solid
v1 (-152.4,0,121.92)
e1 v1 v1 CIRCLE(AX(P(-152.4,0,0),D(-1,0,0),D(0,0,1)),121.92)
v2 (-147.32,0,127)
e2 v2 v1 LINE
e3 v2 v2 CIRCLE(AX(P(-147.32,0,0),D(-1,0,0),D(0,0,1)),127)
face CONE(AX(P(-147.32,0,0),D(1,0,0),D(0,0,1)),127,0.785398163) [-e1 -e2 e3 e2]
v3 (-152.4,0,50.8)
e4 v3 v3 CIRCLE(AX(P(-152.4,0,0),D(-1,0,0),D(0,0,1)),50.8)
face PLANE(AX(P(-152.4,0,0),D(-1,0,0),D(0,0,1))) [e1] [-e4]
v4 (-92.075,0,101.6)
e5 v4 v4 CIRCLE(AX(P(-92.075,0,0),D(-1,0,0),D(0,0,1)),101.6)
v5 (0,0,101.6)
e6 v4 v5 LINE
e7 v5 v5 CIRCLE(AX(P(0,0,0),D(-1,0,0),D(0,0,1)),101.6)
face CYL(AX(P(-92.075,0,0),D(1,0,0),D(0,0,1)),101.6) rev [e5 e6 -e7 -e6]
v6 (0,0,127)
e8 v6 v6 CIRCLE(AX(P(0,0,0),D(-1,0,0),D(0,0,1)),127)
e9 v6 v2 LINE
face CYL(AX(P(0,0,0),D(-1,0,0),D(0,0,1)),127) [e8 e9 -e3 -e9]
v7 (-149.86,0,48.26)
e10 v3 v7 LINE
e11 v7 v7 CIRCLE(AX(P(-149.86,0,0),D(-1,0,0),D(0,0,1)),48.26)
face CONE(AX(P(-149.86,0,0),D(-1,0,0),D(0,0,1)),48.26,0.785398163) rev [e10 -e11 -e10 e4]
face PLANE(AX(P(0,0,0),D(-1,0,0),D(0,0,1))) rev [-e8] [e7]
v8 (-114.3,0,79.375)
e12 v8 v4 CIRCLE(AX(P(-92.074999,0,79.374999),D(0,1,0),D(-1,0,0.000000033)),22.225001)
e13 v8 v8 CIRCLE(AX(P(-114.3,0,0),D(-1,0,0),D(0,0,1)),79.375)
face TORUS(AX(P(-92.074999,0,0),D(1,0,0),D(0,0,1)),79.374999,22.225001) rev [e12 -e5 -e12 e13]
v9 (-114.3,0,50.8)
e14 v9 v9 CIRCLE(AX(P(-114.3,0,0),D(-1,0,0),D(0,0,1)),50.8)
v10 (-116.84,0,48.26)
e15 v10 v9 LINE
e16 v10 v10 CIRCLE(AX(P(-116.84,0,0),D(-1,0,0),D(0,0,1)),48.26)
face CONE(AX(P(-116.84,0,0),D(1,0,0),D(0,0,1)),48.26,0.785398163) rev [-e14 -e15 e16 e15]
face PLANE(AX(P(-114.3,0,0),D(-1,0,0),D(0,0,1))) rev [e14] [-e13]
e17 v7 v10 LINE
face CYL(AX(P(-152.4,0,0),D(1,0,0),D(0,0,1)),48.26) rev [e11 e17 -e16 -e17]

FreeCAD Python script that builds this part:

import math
import FreeCAD as App
import Part
import Sketcher
Q = App.Units.Quantity


def edges_at(feature, points):
    """Names of the edges that pass closest to the given points."""
    edges = feature.Shape.Edges
    near = lambda p: min(range(len(edges)), key=lambda i: edges[i].distToShape(Part.Vertex(*p))[0])
    return sorted({f"Edge{near(p) + 1}" for p in points})

doc = App.newDocument("Part")
body = doc.addObject("PartDesign::Body", "Body")

sketch1 = doc.addObject("Sketcher::SketchObject", "Sketch")
body.addObject(sketch1)
sketch1.AttachmentSupport = (doc.XZ_Plane, [""])
sketch1.MapMode = "FlatFace"
sketch1.addGeometry([
    Part.LineSegment(App.Vector(0, 101.6, 0), App.Vector(0, 127, 0)),
    Part.LineSegment(App.Vector(0, 127, 0), App.Vector(-152.4, 127, 0)),
    Part.LineSegment(App.Vector(-152.4, 127, 0), App.Vector(-152.4, 48.26, 0)),
    Part.LineSegment(App.Vector(-152.4, 48.26, 0), App.Vector(-114.3, 48.26, 0)),
    Part.LineSegment(App.Vector(-114.3, 48.26, 0), App.Vector(-114.3, 79.375, 0)),
    Part.ArcOfCircle(Part.Circle(App.Vector(-92.074999, 79.374999, 0), App.Vector(0, 0, 1), 22.225001), math.radians(90.000002), math.radians(179.999998)),
    Part.LineSegment(App.Vector(-92.075, 101.6, 0), App.Vector(0, 101.6, 0)),
], False)
sketch1.addConstraint([
    Sketcher.Constraint("Coincident", 0, 2, 1, 1),
    Sketcher.Constraint("Coincident", 1, 2, 2, 1),
    Sketcher.Constraint("Coincident", 2, 2, 3, 1),
    Sketcher.Constraint("Coincident", 3, 2, 4, 1),
    Sketcher.Constraint("Tangent", 4, 2, 5, 2),
    Sketcher.Constraint("Tangent", 5, 1, 6, 1),
    Sketcher.Constraint("Coincident", 6, 2, 0, 1),
    Sketcher.Constraint("Vertical", 0),
    Sketcher.Constraint("Horizontal", 1),
    Sketcher.Constraint("Vertical", 2),
    Sketcher.Constraint("Horizontal", 3),
    Sketcher.Constraint("Vertical", 4),
    Sketcher.Constraint("Horizontal", 6),
    Sketcher.Constraint("PointOnObject", 0, 2, -2),
    Sketcher.Constraint("DistanceX", 1, 2, 1, 1, Q("6 in")),
    Sketcher.Constraint("DistanceY", 0, 1, 0, 2, Q("1 in")),
    Sketcher.Constraint("DistanceX", 3, 1, 3, 2, Q("1.5 in")),
    Sketcher.Constraint("DistanceY", 2, 2, 2, 1, Q("3.1 in")),
    Sketcher.Constraint("DistanceY", -1, 1, 0, 2, Q("5 in")),
    Sketcher.Constraint("Radius", 5, Q("0.875 in")),
])
revolution = doc.addObject("PartDesign::Revolution", "Revolution")
body.addObject(revolution)
revolution.Profile = sketch1
revolution.ReferenceAxis = (sketch1, ["H_Axis"])
revolution.Angle = 360
doc.recompute()

chamfer = doc.addObject("PartDesign::Chamfer", "Chamfer")
body.addObject(chamfer)
chamfer.Base = (revolution, edges_at(revolution, [(-152.4, 0, -127)]))
chamfer.Size = Q("0.2 in")
doc.recompute()

chamfer2 = doc.addObject("PartDesign::Chamfer", "Chamfer001")
body.addObject(chamfer2)
chamfer2.Base = (chamfer, edges_at(chamfer, [(-152.4, 0, -48.26), (-114.3, 0, -48.26), (-133.35, 0, 48.26)]))
chamfer2.Size = Q("0.1 in")

doc.recompute()
